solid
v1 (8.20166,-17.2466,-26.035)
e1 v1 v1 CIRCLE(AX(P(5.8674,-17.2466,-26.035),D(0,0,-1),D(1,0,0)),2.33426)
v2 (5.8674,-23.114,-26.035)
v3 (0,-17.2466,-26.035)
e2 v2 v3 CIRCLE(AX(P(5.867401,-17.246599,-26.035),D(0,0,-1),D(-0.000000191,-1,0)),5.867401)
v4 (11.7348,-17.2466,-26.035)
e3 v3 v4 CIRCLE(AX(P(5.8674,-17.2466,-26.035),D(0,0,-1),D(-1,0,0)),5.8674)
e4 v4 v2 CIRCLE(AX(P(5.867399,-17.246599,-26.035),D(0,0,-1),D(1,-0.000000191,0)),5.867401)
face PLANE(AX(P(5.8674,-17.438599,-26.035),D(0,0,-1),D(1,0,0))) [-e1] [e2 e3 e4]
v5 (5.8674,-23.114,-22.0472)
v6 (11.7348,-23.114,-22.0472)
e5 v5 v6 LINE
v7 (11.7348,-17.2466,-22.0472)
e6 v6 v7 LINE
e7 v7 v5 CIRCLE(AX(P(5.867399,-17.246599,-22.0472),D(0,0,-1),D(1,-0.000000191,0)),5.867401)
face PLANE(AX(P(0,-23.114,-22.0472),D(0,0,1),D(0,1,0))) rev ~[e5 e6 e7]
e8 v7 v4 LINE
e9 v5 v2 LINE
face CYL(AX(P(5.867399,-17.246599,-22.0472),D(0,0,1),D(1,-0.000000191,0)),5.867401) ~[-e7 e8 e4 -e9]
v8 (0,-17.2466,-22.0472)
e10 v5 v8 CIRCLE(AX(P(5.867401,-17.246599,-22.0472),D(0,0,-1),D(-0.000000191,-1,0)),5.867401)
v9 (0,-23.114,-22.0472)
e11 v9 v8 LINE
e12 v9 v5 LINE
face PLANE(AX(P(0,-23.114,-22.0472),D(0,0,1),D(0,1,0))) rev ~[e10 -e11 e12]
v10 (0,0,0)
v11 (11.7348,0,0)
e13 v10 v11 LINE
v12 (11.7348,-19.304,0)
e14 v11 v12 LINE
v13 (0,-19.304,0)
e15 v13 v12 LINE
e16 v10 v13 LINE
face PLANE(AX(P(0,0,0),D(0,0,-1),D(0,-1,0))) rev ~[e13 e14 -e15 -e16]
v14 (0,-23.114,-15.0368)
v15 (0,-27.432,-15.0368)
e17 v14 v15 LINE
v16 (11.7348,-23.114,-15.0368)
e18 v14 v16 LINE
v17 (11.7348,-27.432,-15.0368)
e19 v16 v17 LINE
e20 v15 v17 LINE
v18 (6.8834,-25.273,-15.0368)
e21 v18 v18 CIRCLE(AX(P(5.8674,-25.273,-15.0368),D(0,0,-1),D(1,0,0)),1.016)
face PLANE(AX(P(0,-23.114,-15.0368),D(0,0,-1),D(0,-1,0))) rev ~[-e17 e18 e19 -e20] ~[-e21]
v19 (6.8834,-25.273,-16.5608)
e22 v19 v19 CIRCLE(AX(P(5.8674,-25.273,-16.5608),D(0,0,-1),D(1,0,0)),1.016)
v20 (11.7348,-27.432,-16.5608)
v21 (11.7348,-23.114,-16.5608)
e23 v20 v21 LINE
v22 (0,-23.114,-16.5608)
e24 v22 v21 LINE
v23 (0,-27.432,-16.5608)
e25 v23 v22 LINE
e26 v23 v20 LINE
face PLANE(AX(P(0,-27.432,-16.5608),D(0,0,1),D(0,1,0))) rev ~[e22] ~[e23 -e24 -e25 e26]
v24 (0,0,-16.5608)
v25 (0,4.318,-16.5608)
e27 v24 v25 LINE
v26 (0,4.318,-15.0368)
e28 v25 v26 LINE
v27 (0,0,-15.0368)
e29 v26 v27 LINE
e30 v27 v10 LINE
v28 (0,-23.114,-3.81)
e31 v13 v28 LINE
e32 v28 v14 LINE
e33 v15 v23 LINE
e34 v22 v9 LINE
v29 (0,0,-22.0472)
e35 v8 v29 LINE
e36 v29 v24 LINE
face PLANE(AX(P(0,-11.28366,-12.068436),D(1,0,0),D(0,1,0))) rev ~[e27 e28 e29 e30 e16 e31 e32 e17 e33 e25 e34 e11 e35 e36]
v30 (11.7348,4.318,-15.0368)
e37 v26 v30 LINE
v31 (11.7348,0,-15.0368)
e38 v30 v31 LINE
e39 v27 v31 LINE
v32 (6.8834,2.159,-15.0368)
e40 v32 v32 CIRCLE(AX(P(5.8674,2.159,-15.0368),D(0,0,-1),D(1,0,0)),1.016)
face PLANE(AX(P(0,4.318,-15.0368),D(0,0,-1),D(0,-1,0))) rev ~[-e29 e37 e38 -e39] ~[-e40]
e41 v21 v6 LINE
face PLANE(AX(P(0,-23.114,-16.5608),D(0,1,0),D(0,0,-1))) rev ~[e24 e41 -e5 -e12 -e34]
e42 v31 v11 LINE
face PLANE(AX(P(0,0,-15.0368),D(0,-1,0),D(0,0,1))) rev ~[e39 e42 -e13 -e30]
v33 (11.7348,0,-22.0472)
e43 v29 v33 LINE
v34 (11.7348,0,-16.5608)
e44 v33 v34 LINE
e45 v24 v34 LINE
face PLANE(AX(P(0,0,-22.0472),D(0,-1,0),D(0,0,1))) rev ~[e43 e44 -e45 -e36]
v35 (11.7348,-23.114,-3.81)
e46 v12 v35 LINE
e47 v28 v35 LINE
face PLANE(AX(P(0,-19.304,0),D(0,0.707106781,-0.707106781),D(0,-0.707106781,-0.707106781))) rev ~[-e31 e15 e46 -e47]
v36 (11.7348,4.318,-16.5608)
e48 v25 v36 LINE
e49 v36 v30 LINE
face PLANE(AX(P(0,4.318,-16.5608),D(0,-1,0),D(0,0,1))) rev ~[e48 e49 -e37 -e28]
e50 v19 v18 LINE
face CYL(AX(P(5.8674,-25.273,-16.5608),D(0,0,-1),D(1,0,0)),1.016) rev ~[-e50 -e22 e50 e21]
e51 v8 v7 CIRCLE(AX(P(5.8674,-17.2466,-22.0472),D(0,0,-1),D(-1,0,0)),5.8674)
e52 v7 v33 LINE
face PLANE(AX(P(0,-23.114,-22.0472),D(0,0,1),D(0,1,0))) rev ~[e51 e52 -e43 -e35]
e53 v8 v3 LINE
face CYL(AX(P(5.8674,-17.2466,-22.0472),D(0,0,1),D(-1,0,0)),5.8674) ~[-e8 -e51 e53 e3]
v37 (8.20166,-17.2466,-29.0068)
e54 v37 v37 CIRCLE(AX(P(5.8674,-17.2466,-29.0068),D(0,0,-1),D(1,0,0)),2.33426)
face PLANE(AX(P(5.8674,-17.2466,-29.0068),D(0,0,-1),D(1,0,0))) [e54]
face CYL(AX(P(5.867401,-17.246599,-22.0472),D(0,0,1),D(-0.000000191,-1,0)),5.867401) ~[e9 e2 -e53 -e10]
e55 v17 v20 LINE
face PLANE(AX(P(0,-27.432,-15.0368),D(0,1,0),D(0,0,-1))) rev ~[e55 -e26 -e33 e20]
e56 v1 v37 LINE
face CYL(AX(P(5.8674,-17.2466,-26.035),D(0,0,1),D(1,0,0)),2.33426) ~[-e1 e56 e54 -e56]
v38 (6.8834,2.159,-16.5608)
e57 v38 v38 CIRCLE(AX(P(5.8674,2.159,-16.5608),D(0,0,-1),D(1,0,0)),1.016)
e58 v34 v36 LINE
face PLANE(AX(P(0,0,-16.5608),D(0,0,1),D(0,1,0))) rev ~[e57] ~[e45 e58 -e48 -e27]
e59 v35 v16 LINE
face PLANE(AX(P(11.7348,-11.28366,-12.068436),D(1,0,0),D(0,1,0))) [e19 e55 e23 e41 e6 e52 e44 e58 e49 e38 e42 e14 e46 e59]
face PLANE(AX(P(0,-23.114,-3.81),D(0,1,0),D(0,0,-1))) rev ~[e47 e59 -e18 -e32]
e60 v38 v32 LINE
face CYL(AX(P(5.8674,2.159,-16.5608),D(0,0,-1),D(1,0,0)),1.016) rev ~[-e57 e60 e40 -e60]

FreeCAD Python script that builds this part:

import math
import FreeCAD as App
import Part
import Sketcher

V = App.Vector
Q = App.Units.Quantity


def add_polygon(sketch, points):
    """Adds a closed chain of lines whose ends are joined by coincident constraints."""
    first, n = sketch.GeometryCount, len(points)
    for a, b in zip(points, points[1:] + points[:1]):
        sketch.addGeometry(Part.LineSegment(App.Vector(*a, 0), App.Vector(*b, 0)), False)
    for i in range(n):
        sketch.addConstraint(Sketcher.Constraint("Coincident", first + i, 2, first + (i + 1) % n, 1))

doc = App.newDocument("Part")
params = doc.addObject("Spreadsheet::Sheet", "Params")
for row, (alias, value) in enumerate([
    ("sketch1_width", "0.76 in"),
    ("sketch1_width2", "0.17 in"),
    ("sketch1_width3", "0.91 in"),
    ("sketch1_height", "0.06 in"),
    ("sketch1_height2", "0.592 in"),
    ("pad1_length", "0.462 in"),
    ("sketch2_radius", "0.231 in"),
    ("pad2_length", "0.157 in"),
    ("pad3_length", "0.117 in"),
    ("sketch4_diameter", "0.08 in"),
    ("pocket1_length", "1 in"),
], start=1):
    params.set(f"A{row}", alias)
    params.set(f"B{row}", "=" + value)
    params.setAlias(f"B{row}", alias)

body = doc.addObject("PartDesign::Body", "Body")

sketch1 = body.newObject("Sketcher::SketchObject", "Sketch")
sketch1.AttachmentSupport = (doc.getObject("YZ_Plane"), [""])
sketch1.MapMode = "FlatFace"
add_polygon(sketch1, [(0, -15), (0, 0), (-19.3, 0), (-23.1, -3.8), (-23.1, -15), (-27.4, -15), (-27.4, -16.6), (-23.1, -16.6), (-23.1, -22), (0, -22), (0, -16.6), (4.3, -16.6), (4.3, -15)])
sketch1.addConstraint([
    Sketcher.Constraint("Vertical", 0),
    Sketcher.Constraint("Horizontal", 1),
    Sketcher.Constraint("Vertical", 3),
    Sketcher.Constraint("Horizontal", 4),
    Sketcher.Constraint("Vertical", 5),
    Sketcher.Constraint("Horizontal", 6),
    Sketcher.Constraint("Vertical", 7),
    Sketcher.Constraint("Horizontal", 8),
    Sketcher.Constraint("Vertical", 9),
    Sketcher.Constraint("Horizontal", 10),
    Sketcher.Constraint("Vertical", 11),
    Sketcher.Constraint("Horizontal", 12),
    Sketcher.Constraint("Coincident", 0, 2, -1, 1),
    Sketcher.Constraint("PointOnObject", 8, 2, -2),
    Sketcher.Constraint("Horizontal", 6, 2, 9, 2),
    Sketcher.Constraint("Horizontal", 4, 2, 11, 2),
    Sketcher.Constraint("Vertical", 3, 2, 6, 2),
    Sketcher.Constraint("Equal", 6, 10),
    Sketcher.Constraint("Angle", 2, Q("-135 deg")),
    Sketcher.Constraint("DistanceX", 1, 2, 1, 1, Q("0.76 in")),
    Sketcher.Constraint("DistanceX", 4, 2, 4, 1, Q("0.17 in")),
    Sketcher.Constraint("DistanceX", 8, 1, 8, 2, Q("0.91 in")),
    Sketcher.Constraint("DistanceY", 5, 2, 5, 1, Q("0.06 in")),
    Sketcher.Constraint("DistanceY", 0, 1, 0, 2, Q("0.592 in")),
    Sketcher.Constraint("DistanceY", 7, 2, 7, 1, Q("0.216 in")),
])
sketch1.setExpression("Constraints[32]", "Params.sketch1_width")
sketch1.setExpression("Constraints[33]", "Params.sketch1_width2")
sketch1.setExpression("Constraints[34]", "Params.sketch1_width3")
sketch1.setExpression("Constraints[35]", "Params.sketch1_height")
sketch1.setExpression("Constraints[36]", "Params.sketch1_height2")
pad1 = body.newObject("PartDesign::Pad", "Pad")
pad1.Profile = sketch1
pad1.setExpression("Length", "Params.pad1_length")

sketch2 = body.newObject("Sketcher::SketchObject", "Sketch001")
sketch2.AttachmentSupport = (doc.getObject("XY_Plane"), [""])
sketch2.MapMode = "FlatFace"
sketch2.AttachmentOffset = App.Placement(V(0, 0, -0.868 * 25.4), App.Rotation())
sketch2.addGeometry([
    Part.ArcOfCircle(Part.Circle(V(6, -17, 0), V(0, 0, 1), 6), math.radians(0), math.radians(180)),
    Part.ArcOfCircle(Part.Circle(V(6, -17, 0), V(0, 0, 1), 6), math.radians(-90), math.radians(0)),
    Part.ArcOfCircle(Part.Circle(V(6, -17, 0), V(0, 0, 1), 6), math.radians(-180), math.radians(-90)),
], False)
sketch2.addConstraint([
    Sketcher.Constraint("Tangent", 0, 1, 1, 2),
    Sketcher.Constraint("Tangent", 1, 1, 2, 2),
    Sketcher.Constraint("Tangent", 2, 1, 0, 2),
    Sketcher.Constraint("PointOnObject", 2, 1, -2),
    Sketcher.Constraint("Horizontal", 2, 3, 0, 1),
    Sketcher.Constraint("Horizontal", 0, 1, 2, 1),
    Sketcher.Constraint("Vertical", 2, 3, 1, 1),
    Sketcher.Constraint("Radius", 0, Q("0.231 in")),
    Sketcher.Constraint("DistanceY", 1, 1, -1, 1, Q("0.91 in")),
])
sketch2.setExpression("Constraints[7]", "Params.sketch2_radius")
pad2 = body.newObject("PartDesign::Pad", "Pad001")
pad2.Profile = sketch2
pad2.setExpression("Length", "Params.pad2_length")
pad2.Reversed = True

sketch3 = body.newObject("Sketcher::SketchObject", "Sketch002")
sketch3.AttachmentSupport = (doc.getObject("XY_Plane"), [""])
sketch3.MapMode = "FlatFace"
sketch3.AttachmentOffset = App.Placement(V(0, 0, -1.025 * 25.4), App.Rotation())
sketch3.addGeometry(Part.Circle(V(5.9, -17.2, 0), V(0, 0, 1), 2.3), False)
sketch3.addConstraint([
    Sketcher.Constraint("Diameter", 0, Q("0.1838 in")),
    Sketcher.Constraint("DistanceX", -1, 1, 0, 3, Q("0.231 in")),
    Sketcher.Constraint("DistanceY", 0, 3, -1, 1, Q("0.679 in")),
])
pad3 = body.newObject("PartDesign::Pad", "Pad002")
pad3.Profile = sketch3
pad3.setExpression("Length", "Params.pad3_length")
pad3.Reversed = True

sketch4 = body.newObject("Sketcher::SketchObject", "Sketch003")
sketch4.AttachmentSupport = (doc.getObject("XY_Plane"), [""])
sketch4.MapMode = "FlatFace"
sketch4.AttachmentOffset = App.Placement(V(0, 0, -0.652 * 25.4), App.Rotation())
sketch4.addGeometry([
    Part.Circle(V(5.9, -25.3, 0), V(0, 0, 1), 1),
    Part.Circle(V(5.9, 2.2, 0), V(0, 0, 1), 1),
], False)
sketch4.addConstraint([
    Sketcher.Constraint("Equal", 0, 1),
    Sketcher.Constraint("Vertical", 0, 3, 1, 3),
    Sketcher.Constraint("Diameter", 0, Q("0.08 in")),
    Sketcher.Constraint("DistanceY", 0, 3, 1, 3, Q("1.08 in")),
    Sketcher.Constraint("DistanceX", -1, 1, 0, 3, Q("0.231 in")),
    Sketcher.Constraint("DistanceY", 0, 3, -1, 1, Q("0.995 in")),
])
sketch4.setExpression("Constraints[2]", "Params.sketch4_diameter")
pocket1 = body.newObject("PartDesign::Pocket", "Pocket")
pocket1.Profile = sketch4
pocket1.setExpression("Length", "Params.pocket1_length")
pocket1.Reversed = True

doc.recompute()
